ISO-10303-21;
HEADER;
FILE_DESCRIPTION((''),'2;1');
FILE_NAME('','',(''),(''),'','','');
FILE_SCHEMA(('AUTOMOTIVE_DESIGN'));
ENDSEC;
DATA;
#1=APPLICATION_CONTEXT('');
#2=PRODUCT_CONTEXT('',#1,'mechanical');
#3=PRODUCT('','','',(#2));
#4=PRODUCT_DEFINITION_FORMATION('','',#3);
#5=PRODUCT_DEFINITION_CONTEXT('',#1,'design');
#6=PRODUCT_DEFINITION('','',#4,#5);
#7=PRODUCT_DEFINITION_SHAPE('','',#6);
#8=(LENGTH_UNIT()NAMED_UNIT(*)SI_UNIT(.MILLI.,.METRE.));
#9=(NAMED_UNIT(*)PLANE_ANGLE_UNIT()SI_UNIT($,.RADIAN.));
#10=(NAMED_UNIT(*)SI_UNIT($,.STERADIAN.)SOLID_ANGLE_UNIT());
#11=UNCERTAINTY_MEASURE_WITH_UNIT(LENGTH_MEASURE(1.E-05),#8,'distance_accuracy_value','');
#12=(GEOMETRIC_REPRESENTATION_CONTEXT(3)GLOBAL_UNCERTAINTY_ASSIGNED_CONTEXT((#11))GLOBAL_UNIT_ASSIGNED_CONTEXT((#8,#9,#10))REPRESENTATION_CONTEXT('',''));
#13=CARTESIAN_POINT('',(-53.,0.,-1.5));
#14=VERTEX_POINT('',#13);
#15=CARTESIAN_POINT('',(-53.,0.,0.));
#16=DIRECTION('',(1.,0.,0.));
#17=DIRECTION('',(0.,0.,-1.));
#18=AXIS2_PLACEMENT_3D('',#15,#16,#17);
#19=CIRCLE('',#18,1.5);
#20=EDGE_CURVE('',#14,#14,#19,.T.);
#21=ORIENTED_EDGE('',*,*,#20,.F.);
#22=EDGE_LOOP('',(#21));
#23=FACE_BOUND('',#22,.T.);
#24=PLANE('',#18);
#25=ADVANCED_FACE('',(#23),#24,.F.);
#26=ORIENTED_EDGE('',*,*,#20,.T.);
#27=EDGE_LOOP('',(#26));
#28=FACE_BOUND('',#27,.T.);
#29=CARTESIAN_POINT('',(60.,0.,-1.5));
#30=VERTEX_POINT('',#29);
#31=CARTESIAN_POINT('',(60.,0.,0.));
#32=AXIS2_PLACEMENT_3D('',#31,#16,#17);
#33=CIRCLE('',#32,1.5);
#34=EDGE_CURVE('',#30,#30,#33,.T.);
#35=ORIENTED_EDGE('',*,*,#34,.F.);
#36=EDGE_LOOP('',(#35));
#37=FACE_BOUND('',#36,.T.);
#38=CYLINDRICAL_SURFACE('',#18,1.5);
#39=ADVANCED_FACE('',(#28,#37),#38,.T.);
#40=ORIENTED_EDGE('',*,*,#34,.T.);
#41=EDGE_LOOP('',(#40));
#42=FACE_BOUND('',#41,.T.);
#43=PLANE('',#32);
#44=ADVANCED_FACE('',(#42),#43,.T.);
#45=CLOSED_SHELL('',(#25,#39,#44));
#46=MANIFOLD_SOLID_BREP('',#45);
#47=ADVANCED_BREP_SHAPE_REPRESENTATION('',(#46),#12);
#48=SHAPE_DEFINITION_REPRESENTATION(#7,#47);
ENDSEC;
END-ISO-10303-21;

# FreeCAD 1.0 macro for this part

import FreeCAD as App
import Part
import Sketcher
from FreeCAD import Vector

doc = App.newDocument("Part")
body = doc.addObject("PartDesign::Body", "Body")

# Sketch on YZ plane
sketch1 = body.newObject("Sketcher::SketchObject", "Sketch")
sketch1.AttachmentSupport = (doc.getObject("YZ_Plane"), [""])
sketch1.MapMode = "FlatFace"
sketch1.addGeometry(Part.Circle(Vector(0, 0, 0), Vector(0, 0, 1), 1.5), False)
sketch1.addConstraint([
    Sketcher.Constraint("Coincident", 0, 3, -1, 1),
    Sketcher.Constraint("Diameter", 0, 3.0),
])
pad1 = body.newObject("PartDesign::Pad", "Pad")
pad1.Profile = sketch1
pad1.Type = "TwoLengths"
pad1.Length = 60
pad1.Length2 = 53

doc.recompute()
